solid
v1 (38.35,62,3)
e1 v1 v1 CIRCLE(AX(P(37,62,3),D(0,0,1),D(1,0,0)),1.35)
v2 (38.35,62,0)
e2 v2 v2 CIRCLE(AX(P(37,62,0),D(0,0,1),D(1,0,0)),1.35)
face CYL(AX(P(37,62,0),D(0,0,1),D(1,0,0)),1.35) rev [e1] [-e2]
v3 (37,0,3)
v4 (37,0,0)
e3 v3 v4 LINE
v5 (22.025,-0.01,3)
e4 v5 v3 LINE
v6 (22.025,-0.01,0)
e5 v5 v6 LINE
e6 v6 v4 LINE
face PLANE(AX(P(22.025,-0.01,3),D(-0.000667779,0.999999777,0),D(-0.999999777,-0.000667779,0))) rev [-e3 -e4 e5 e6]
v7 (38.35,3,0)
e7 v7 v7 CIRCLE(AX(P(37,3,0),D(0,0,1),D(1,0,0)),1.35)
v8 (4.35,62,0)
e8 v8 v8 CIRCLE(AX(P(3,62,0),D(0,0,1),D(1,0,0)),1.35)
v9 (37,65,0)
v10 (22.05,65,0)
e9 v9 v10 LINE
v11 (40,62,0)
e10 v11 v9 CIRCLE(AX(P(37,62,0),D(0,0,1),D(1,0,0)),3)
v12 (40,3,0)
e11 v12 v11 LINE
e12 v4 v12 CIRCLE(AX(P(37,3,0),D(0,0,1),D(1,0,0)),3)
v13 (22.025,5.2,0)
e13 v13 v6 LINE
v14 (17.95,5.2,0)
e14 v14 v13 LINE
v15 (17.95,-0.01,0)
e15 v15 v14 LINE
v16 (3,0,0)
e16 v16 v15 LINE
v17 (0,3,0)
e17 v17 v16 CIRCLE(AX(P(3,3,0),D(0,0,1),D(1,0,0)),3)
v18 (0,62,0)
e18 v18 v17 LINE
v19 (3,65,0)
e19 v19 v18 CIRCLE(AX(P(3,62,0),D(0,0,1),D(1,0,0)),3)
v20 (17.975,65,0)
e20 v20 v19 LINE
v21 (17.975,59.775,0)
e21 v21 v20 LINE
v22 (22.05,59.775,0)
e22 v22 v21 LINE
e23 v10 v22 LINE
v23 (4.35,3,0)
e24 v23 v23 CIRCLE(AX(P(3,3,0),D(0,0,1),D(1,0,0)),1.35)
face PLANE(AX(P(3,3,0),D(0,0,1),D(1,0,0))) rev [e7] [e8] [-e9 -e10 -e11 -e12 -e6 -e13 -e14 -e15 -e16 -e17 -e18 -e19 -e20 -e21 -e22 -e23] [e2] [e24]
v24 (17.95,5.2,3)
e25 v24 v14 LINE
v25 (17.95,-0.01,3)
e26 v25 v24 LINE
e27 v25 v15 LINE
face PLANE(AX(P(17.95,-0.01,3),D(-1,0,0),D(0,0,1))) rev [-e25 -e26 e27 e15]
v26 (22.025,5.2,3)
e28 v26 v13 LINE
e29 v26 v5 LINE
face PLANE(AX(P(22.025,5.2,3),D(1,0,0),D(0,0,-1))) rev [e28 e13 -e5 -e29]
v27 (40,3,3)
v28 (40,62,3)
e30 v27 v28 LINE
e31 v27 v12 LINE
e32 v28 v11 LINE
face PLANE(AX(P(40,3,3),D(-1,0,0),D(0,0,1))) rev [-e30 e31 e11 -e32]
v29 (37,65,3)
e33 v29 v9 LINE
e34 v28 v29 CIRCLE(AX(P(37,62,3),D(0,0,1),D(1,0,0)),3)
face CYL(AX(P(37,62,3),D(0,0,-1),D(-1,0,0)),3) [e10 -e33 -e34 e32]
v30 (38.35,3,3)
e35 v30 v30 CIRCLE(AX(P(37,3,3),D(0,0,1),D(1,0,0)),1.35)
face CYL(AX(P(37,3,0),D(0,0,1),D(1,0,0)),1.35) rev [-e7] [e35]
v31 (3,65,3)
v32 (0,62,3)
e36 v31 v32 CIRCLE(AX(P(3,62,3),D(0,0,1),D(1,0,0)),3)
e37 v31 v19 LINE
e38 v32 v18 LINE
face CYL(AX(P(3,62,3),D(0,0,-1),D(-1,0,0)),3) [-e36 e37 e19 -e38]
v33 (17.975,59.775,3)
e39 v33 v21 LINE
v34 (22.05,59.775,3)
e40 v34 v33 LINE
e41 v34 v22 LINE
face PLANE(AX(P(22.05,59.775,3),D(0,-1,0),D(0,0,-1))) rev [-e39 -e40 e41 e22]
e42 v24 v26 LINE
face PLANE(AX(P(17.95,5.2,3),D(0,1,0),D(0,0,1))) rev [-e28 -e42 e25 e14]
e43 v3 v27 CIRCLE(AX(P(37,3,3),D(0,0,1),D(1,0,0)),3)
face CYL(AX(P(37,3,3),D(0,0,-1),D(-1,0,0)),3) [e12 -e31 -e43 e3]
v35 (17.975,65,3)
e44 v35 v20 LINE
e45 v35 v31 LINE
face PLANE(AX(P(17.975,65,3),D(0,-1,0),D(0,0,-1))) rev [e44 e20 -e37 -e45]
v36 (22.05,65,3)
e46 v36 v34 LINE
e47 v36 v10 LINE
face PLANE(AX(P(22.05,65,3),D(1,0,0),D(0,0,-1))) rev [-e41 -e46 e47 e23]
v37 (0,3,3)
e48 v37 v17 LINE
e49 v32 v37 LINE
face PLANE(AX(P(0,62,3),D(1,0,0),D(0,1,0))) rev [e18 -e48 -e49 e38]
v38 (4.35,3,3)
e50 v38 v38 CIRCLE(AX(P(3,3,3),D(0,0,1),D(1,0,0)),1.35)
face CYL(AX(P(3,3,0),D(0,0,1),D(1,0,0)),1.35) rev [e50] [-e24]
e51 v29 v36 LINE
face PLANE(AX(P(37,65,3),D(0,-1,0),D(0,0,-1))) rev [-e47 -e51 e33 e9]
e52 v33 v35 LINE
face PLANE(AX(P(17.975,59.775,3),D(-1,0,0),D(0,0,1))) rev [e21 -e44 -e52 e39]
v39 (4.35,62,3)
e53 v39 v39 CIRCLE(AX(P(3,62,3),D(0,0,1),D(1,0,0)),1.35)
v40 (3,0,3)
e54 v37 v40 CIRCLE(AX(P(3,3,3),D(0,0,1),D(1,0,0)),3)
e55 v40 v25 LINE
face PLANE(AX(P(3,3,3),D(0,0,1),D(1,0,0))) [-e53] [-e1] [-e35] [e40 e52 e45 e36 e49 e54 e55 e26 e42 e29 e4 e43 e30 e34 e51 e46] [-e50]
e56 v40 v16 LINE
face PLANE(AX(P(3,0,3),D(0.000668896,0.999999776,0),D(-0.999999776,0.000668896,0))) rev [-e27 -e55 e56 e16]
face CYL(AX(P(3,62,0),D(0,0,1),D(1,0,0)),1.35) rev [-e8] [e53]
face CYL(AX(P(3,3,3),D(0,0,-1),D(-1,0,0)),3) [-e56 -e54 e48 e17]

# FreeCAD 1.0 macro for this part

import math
import FreeCAD as App
import Part
import Sketcher
from FreeCAD import Vector

doc = App.newDocument("Part")
body = doc.addObject("PartDesign::Body", "Body")

# Sketch on XY plane
sketch1 = doc.addObject("Sketcher::SketchObject", "Sketch")
body.addObject(sketch1)
sketch1.AttachmentSupport = (doc.XY_Plane, [""])
sketch1.MapMode = "FlatFace"
sketch1.addGeometry([
    Part.LineSegment(Vector(3, 0, 0), Vector(17.9, 0, 0)),  # 0
    Part.LineSegment(Vector(17.9, 0, 0), Vector(17.9, 5.2, 0)),  # 1
    Part.LineSegment(Vector(17.9, 5.2, 0), Vector(22, 5.2, 0)),  # 2
    Part.LineSegment(Vector(22, 5.2, 0), Vector(22, 0, 0)),  # 3
    Part.LineSegment(Vector(22, 0, 0), Vector(37, 0, 0)),  # 4
    Part.ArcOfCircle(Part.Circle(Vector(37, 3, 0), Vector(0, 0, 1), 3), math.radians(-90), math.radians(0)),  # 5
    Part.LineSegment(Vector(40, 3, 0), Vector(40, 62, 0)),  # 6
    Part.ArcOfCircle(Part.Circle(Vector(37, 62, 0), Vector(0, 0, 1), 3), math.radians(0), math.radians(90)),  # 7
    Part.LineSegment(Vector(37, 65, 0), Vector(22.1, 65, 0)),  # 8
    Part.LineSegment(Vector(22.1, 65, 0), Vector(22.1, 59.8, 0)),  # 9
    Part.LineSegment(Vector(22.1, 59.8, 0), Vector(18, 59.8, 0)),  # 10
    Part.LineSegment(Vector(18, 59.8, 0), Vector(18, 65, 0)),  # 11
    Part.LineSegment(Vector(18, 65, 0), Vector(3, 65, 0)),  # 12
    Part.ArcOfCircle(Part.Circle(Vector(3, 62, 0), Vector(0, 0, 1), 3), math.radians(90), math.radians(180)),  # 13
    Part.LineSegment(Vector(0, 62, 0), Vector(0, 3, 0)),  # 14
    Part.ArcOfCircle(Part.Circle(Vector(3, 3, 0), Vector(0, 0, 1), 3), math.radians(180), math.radians(270)),  # 15
], False)
sketch1.addConstraint([
    Sketcher.Constraint("Coincident", 0, 2, 1, 1),
    Sketcher.Constraint("Coincident", 1, 2, 2, 1),
    Sketcher.Constraint("Coincident", 2, 2, 3, 1),
    Sketcher.Constraint("Coincident", 3, 2, 4, 1),
    Sketcher.Constraint("Coincident", 4, 2, 5, 1),
    Sketcher.Constraint("Tangent", 5, 2, 6, 1),
    Sketcher.Constraint("Tangent", 6, 2, 7, 1),
    Sketcher.Constraint("Tangent", 7, 2, 8, 1),
    Sketcher.Constraint("Coincident", 8, 2, 9, 1),
    Sketcher.Constraint("Coincident", 9, 2, 10, 1),
    Sketcher.Constraint("Coincident", 10, 2, 11, 1),
    Sketcher.Constraint("Coincident", 11, 2, 12, 1),
    Sketcher.Constraint("Tangent", 12, 2, 13, 1),
    Sketcher.Constraint("Tangent", 13, 2, 14, 1),
    Sketcher.Constraint("Tangent", 14, 2, 15, 1),
    Sketcher.Constraint("Coincident", 15, 2, 0, 1),
    Sketcher.Constraint("Vertical", 1),
    Sketcher.Constraint("Horizontal", 2),
    Sketcher.Constraint("Vertical", 3),
    Sketcher.Constraint("Vertical", 6),
    Sketcher.Constraint("Horizontal", 8),
    Sketcher.Constraint("Vertical", 9),
    Sketcher.Constraint("Horizontal", 10),
    Sketcher.Constraint("Vertical", 11),
    Sketcher.Constraint("Horizontal", 12),
    Sketcher.Constraint("Vertical", 14),
    Sketcher.Constraint("Equal", 5, 7),
    Sketcher.Constraint("Equal", 7, 13),
    Sketcher.Constraint("Equal", 13, 15),
    Sketcher.Constraint("PointOnObject", 4, 2, -1),
    Sketcher.Constraint("PointOnObject", 13, 2, -2),
    Sketcher.Constraint("PointOnObject", 15, 2, -1),
    Sketcher.Constraint("Horizontal", 7, 3, 13, 3),
    Sketcher.Constraint("Horizontal", 0, 2, 3, 2),
    Sketcher.Constraint("Vertical", 7, 3, 4, 2),
    Sketcher.Constraint("Vertical", 12, 2, 15, 2),
    Sketcher.Constraint("Equal", 2, 10),
    Sketcher.Constraint("Radius", 5, 3.0),
    Sketcher.Constraint("DistanceY", 6, 1, 6, 2, 59.0),
    Sketcher.Constraint("DistanceX", -1, 1, 5, 3, 37.0),
    Sketcher.Constraint("DistanceX", 8, 2, 8, 1, 14.95),
    Sketcher.Constraint("DistanceY", 1, 1, 1, 2, 5.21),
    Sketcher.Constraint("DistanceY", -1, 1, 1, 2, 5.2),
    Sketcher.Constraint("DistanceX", 2, 1, 2, 2, 4.075),
    Sketcher.Constraint("DistanceY", 9, 2, 9, 1, 5.225),
    Sketcher.Constraint("DistanceX", -1, 1, 0, 2, 17.95),
])
pad1 = doc.addObject("PartDesign::Pad", "Pad")
body.addObject(pad1)
pad1.Profile = sketch1
pad1.Length = 3

# Sketch on XY plane
sketch2 = doc.addObject("Sketcher::SketchObject", "Sketch001")
body.addObject(sketch2)
sketch2.AttachmentSupport = (doc.XY_Plane, [""])
sketch2.MapMode = "FlatFace"
sketch2.AttachmentOffset = App.Placement(Vector(0, 0, 3), App.Rotation())
sketch2.addGeometry([
    Part.Circle(Vector(3, 3, 0), Vector(0, 0, 1), 1.4),
    Part.Circle(Vector(37, 3, 0), Vector(0, 0, 1), 1.4),
    Part.Circle(Vector(37, 62, 0), Vector(0, 0, 1), 1.4),
    Part.Circle(Vector(3, 62, 0), Vector(0, 0, 1), 1.4),
], False)
sketch2.addConstraint([
    Sketcher.Constraint("Equal", 0, 1),
    Sketcher.Constraint("Equal", 1, 2),
    Sketcher.Constraint("Equal", 2, 3),
    Sketcher.Constraint("Horizontal", 0, 3, 1, 3),
    Sketcher.Constraint("Horizontal", 2, 3, 3, 3),
    Sketcher.Constraint("Vertical", 1, 3, 2, 3),
    Sketcher.Constraint("Vertical", 0, 3, 3, 3),
    Sketcher.Constraint("Diameter", 0, 2.7),
    Sketcher.Constraint("DistanceX", -1, 1, 0, 3, 3.0),
    Sketcher.Constraint("DistanceY", -1, 1, 0, 3, 3.0),
    Sketcher.Constraint("DistanceX", -1, 1, 1, 3, 37.0),
    Sketcher.Constraint("DistanceY", -1, 1, 2, 3, 62.0),
])
pocket1 = doc.addObject("PartDesign::Pocket", "Pocket")
body.addObject(pocket1)
pocket1.Profile = sketch2
pocket1.Type = "ThroughAll"

doc.recompute()
